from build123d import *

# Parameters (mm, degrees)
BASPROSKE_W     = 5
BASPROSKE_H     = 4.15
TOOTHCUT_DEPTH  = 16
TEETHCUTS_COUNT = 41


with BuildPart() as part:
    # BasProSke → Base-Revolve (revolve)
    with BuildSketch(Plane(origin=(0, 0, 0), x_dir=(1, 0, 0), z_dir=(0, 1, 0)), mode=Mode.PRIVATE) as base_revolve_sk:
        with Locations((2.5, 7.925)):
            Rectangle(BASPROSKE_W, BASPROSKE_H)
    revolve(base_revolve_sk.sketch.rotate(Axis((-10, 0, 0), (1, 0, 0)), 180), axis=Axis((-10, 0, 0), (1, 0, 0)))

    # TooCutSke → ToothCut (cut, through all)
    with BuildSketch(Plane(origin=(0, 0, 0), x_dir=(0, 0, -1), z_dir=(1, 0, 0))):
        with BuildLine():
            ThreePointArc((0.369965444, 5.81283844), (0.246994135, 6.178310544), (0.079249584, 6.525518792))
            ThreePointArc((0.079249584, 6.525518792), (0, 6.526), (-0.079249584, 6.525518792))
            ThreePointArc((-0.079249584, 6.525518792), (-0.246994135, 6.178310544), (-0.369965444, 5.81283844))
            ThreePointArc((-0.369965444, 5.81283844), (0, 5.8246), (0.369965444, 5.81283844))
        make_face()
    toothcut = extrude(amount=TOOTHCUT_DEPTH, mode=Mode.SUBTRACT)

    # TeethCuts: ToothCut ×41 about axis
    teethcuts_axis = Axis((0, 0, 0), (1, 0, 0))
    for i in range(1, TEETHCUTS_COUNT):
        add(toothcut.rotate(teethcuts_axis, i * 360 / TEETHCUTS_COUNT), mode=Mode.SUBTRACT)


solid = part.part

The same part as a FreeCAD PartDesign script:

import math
import FreeCAD as App
import Part
import Sketcher


def add_polygon(sketch, points):
    """Adds a closed chain of lines whose ends are joined by coincident constraints."""
    first, n = sketch.GeometryCount, len(points)
    for a, b in zip(points, points[1:] + points[:1]):
        sketch.addGeometry(Part.LineSegment(App.Vector(*a, 0), App.Vector(*b, 0)), False)
    for i in range(n):
        sketch.addConstraint(Sketcher.Constraint("Coincident", first + i, 2, first + (i + 1) % n, 1))

doc = App.newDocument("Part")
body = doc.addObject("PartDesign::Body", "Body")

# Sketch on XZ plane
sketch1 = body.newObject("Sketcher::SketchObject", "Sketch")
sketch1.AttachmentSupport = (doc.getObject("XZ_Plane"), [""])
sketch1.MapMode = "FlatFace"
add_polygon(sketch1, [(0, -10), (0, -5.8), (5, -5.8), (5, -10)])  # lines 0-3
sketch1.addConstraint(Sketcher.Constraint("Vertical", 0))
sketch1.addConstraint(Sketcher.Constraint("Horizontal", 1))
sketch1.addConstraint(Sketcher.Constraint("Vertical", 2))
sketch1.addConstraint(Sketcher.Constraint("Horizontal", 3))
sketch1.addConstraint(Sketcher.Constraint("PointOnObject", 0, 2, -2))
sketch1.addConstraint(Sketcher.Constraint("DistanceX", 1, 1, 1, 2, 5.0))
sketch1.addConstraint(Sketcher.Constraint("DistanceY", 2, 2, -1, 1, 10.0))
sketch1.addConstraint(Sketcher.Constraint("DistanceY", 0, 1, 0, 2, 4.15))
revolution = body.newObject("PartDesign::Revolution", "Revolution")
revolution.Profile = sketch1
revolution.ReferenceAxis = (sketch1, ["H_Axis"])
revolution.Angle = 360

# Sketch on YZ plane
sketch2 = body.newObject("Sketcher::SketchObject", "Sketch001")
sketch2.AttachmentSupport = (doc.getObject("YZ_Plane"), [""])
sketch2.MapMode = "FlatFace"
sketch2.addGeometry(Part.ArcOfCircle(Part.Circle(App.Vector(5.02, 2.6, 0), App.Vector(0, 0, 1), 3.07), math.radians(-75), math.radians(-60.62)), False)
sketch2.addGeometry(Part.ArcOfCircle(Part.Circle(App.Vector(0, 0, 0), App.Vector(0, 0, 1), 6.53), math.radians(-0.7), math.radians(0.7)), False)
sketch2.addGeometry(Part.ArcOfCircle(Part.Circle(App.Vector(5.02, -2.6, 0), App.Vector(0, 0, 1), 3.07), math.radians(60.62), math.radians(75)), False)
sketch2.addGeometry(Part.ArcOfCircle(Part.Circle(App.Vector(0, 0, 0), App.Vector(0, 0, 1), 5.82), math.radians(-3.64), math.radians(3.64)), False)
sketch2.addConstraint(Sketcher.Constraint("Coincident", 0, 2, 1, 1))
sketch2.addConstraint(Sketcher.Constraint("Coincident", 1, 2, 2, 1))
sketch2.addConstraint(Sketcher.Constraint("Coincident", 2, 2, 3, 2))
sketch2.addConstraint(Sketcher.Constraint("Coincident", 3, 1, 0, 1))
sketch2.addConstraint(Sketcher.Constraint("Coincident", 1, 3, -1, 1))
sketch2.addConstraint(Sketcher.Constraint("Coincident", 3, 3, -1, 1))
sketch2.addConstraint(Sketcher.Constraint("Equal", 0, 2))
sketch2.addConstraint(Sketcher.Constraint("Symmetric", 0, 3, 2, 3, -1))
sketch2.addConstraint(Sketcher.Constraint("Radius", 0, 3.075))
sketch2.addConstraint(Sketcher.Constraint("Radius", 1, 6.526001))
sketch2.addConstraint(Sketcher.Constraint("Radius", 3, 5.8246))
sketch2.addConstraint(Sketcher.Constraint("DistanceY", 0, 2, 1, 2, 0.158499))
sketch2.addConstraint(Sketcher.Constraint("DistanceY", -1, 1, 0, 3, 2.600231))
pocket1 = body.newObject("PartDesign::Pocket", "Pocket")
pocket1.Profile = sketch2
pocket1.Type = "ThroughAll"
pocket1.Reversed = True
doc.recompute()

polarpattern = body.newObject("PartDesign::PolarPattern", "PolarPattern")
polarpattern.Originals = [pocket1]
polarpattern.Axis = (doc.getObject("X_Axis"), [""])
polarpattern.Angle = 360
polarpattern.Occurrences = 41
body.Tip = polarpattern

doc.recompute()
